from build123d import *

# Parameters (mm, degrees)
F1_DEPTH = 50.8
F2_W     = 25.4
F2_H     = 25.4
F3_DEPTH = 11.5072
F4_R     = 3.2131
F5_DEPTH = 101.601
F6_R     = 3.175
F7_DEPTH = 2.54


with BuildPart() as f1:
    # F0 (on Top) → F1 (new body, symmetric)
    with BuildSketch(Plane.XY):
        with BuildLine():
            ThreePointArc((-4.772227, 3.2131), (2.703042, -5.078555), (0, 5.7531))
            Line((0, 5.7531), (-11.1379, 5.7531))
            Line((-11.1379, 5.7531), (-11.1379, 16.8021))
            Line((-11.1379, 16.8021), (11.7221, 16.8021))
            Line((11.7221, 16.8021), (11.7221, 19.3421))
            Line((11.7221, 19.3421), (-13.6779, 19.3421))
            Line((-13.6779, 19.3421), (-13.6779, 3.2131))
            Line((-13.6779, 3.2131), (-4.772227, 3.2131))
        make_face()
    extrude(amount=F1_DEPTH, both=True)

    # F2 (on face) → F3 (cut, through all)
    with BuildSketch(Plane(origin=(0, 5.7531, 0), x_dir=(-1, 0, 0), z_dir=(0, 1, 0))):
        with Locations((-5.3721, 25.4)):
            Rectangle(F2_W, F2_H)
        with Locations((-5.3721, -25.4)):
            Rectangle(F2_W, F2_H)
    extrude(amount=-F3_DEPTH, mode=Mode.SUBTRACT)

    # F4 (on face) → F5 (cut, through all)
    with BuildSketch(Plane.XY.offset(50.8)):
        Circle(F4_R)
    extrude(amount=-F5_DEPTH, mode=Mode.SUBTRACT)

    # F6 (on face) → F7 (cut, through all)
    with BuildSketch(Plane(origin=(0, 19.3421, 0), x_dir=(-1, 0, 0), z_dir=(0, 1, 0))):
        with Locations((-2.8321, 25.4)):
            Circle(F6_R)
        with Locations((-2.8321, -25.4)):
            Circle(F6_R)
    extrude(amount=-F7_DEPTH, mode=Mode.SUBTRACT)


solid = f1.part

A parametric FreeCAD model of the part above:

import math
import FreeCAD as App
import Part
import Sketcher
from FreeCAD import Vector
Q = App.Units.Quantity


def add_polygon(sketch, points):
    """Adds a closed chain of lines whose ends are joined by coincident constraints."""
    first, n = sketch.GeometryCount, len(points)
    for a, b in zip(points, points[1:] + points[:1]):
        sketch.addGeometry(Part.LineSegment(App.Vector(*a, 0), App.Vector(*b, 0)), False)
    for i in range(n):
        sketch.addConstraint(Sketcher.Constraint("Coincident", first + i, 2, first + (i + 1) % n, 1))

doc = App.newDocument("Part")
body = doc.addObject("PartDesign::Body", "Body")

sketch1 = body.newObject("Sketcher::SketchObject", "Sketch")
sketch1.AttachmentSupport = (doc.getObject("XY_Plane"), [""])
sketch1.MapMode = "FlatFace"
sketch1.addGeometry([
    Part.ArcOfCircle(Part.Circle(Vector(0, 0, 0), Vector(0, 0, 1), 5.7531), math.radians(146.04795), math.radians(449.999997)),
    Part.LineSegment(Vector(0, 5.7531, 0), Vector(-11.1379, 5.7531, 0)),
    Part.LineSegment(Vector(-11.1379, 5.7531, 0), Vector(-11.1379, 16.8021, 0)),
    Part.LineSegment(Vector(-11.1379, 16.8021, 0), Vector(11.7221, 16.8021, 0)),
    Part.LineSegment(Vector(11.7221, 16.8021, 0), Vector(11.7221, 19.3421, 0)),
    Part.LineSegment(Vector(11.7221, 19.3421, 0), Vector(-13.6779, 19.3421, 0)),
    Part.LineSegment(Vector(-13.6779, 19.3421, 0), Vector(-13.6779, 3.2131, 0)),
    Part.LineSegment(Vector(-13.6779, 3.2131, 0), Vector(-4.772227, 3.2131, 0)),
], False)
sketch1.addConstraint([
    Sketcher.Constraint("Tangent", 0, 2, 1, 1),
    Sketcher.Constraint("Coincident", 1, 2, 2, 1),
    Sketcher.Constraint("Coincident", 2, 2, 3, 1),
    Sketcher.Constraint("Coincident", 3, 2, 4, 1),
    Sketcher.Constraint("Coincident", 4, 2, 5, 1),
    Sketcher.Constraint("Coincident", 5, 2, 6, 1),
    Sketcher.Constraint("Coincident", 6, 2, 7, 1),
    Sketcher.Constraint("Coincident", 7, 2, 0, 1),
    Sketcher.Constraint("Horizontal", 1),
    Sketcher.Constraint("Vertical", 2),
    Sketcher.Constraint("Horizontal", 3),
    Sketcher.Constraint("Vertical", 4),
    Sketcher.Constraint("Horizontal", 5),
    Sketcher.Constraint("Vertical", 6),
    Sketcher.Constraint("Horizontal", 7),
    Sketcher.Constraint("Coincident", 0, 3, -1, 1),
    Sketcher.Constraint("DistanceX", 5, 2, 5, 1, Q("1 in")),
    Sketcher.Constraint("DistanceX", 3, 1, 3, 2, Q("0.9 in")),
    Sketcher.Constraint("DistanceY", 4, 1, 4, 2, Q("0.1 in")),
    Sketcher.Constraint("Radius", 0, Q("0.2265 in")),
    Sketcher.Constraint("DistanceY", 6, 2, 1, 2, Q("0.1 in")),
    Sketcher.Constraint("DistanceY", 2, 1, 2, 2, Q("0.435 in")),
    Sketcher.Constraint("DistanceX", 1, 2, 1, 1, Q("0.4385 in")),
])
pad1 = body.newObject("PartDesign::Pad", "Pad")
pad1.Profile = sketch1
pad1.Length = Q("4 in")
pad1.Midplane = True

sketch2 = body.newObject("Sketcher::SketchObject", "Sketch001")
sketch2.AttachmentSupport = (doc.getObject("XZ_Plane"), [""])
sketch2.MapMode = "FlatFace"
sketch2.AttachmentOffset = App.Placement(Vector(0, 0, -0.2265 * 25.4), App.Rotation())
add_polygon(sketch2, [(18.0721, 38.1), (18.0721, 12.7), (-7.3279, 12.7), (-7.3279, 38.1)])
add_polygon(sketch2, [(18.0721, -12.7), (18.0721, -38.1), (-7.3279, -38.1), (-7.3279, -12.7)])
sketch2.addConstraint([
    Sketcher.Constraint("Vertical", 0),
    Sketcher.Constraint("Horizontal", 1),
    Sketcher.Constraint("Vertical", 2),
    Sketcher.Constraint("Horizontal", 3),
    Sketcher.Constraint("Vertical", 4),
    Sketcher.Constraint("Horizontal", 5),
    Sketcher.Constraint("Vertical", 6),
    Sketcher.Constraint("Horizontal", 7),
    Sketcher.Constraint("Symmetric", 3, 2, 4, 2, -1),
    Sketcher.Constraint("Symmetric", 1, 2, 6, 2, -1),
    Sketcher.Constraint("Equal", 7, 0),
    Sketcher.Constraint("DistanceX", 1, 2, 1, 1, Q("1 in")),
    Sketcher.Constraint("DistanceY", 4, 2, 0, 2, Q("2 in")),
    Sketcher.Constraint("DistanceX", -1, 1, 0, 2, Q("0.7115 in")),
])
pocket1 = body.newObject("PartDesign::Pocket", "Pocket")
pocket1.Profile = sketch2
pocket1.Type = "ThroughAll"
pocket1.Reversed = True

sketch3 = body.newObject("Sketcher::SketchObject", "Sketch002")
sketch3.AttachmentSupport = (doc.getObject("XY_Plane"), [""])
sketch3.MapMode = "FlatFace"
sketch3.AttachmentOffset = App.Placement(Vector(0, 0, 2 * 25.4), App.Rotation())
sketch3.addGeometry(Part.Circle(Vector(0, 0, 0), Vector(0, 0, 1), 3.2131), False)
sketch3.addConstraint([
    Sketcher.Constraint("Coincident", 0, 3, -1, 1),
    Sketcher.Constraint("Diameter", 0, Q("0.253 in")),
])
pocket2 = body.newObject("PartDesign::Pocket", "Pocket001")
pocket2.Profile = sketch3
pocket2.Type = "ThroughAll"

sketch4 = body.newObject("Sketcher::SketchObject", "Sketch003")
sketch4.AttachmentSupport = (doc.getObject("XZ_Plane"), [""])
sketch4.MapMode = "FlatFace"
sketch4.AttachmentOffset = App.Placement(Vector(0, 0, -0.7615 * 25.4), App.Rotation())
sketch4.addGeometry([
    Part.Circle(Vector(2.8321, 25.4, 0), Vector(0, 0, 1), 3.175),
    Part.Circle(Vector(2.8321, -25.4, 0), Vector(0, 0, 1), 3.175),
], False)
sketch4.addConstraint([
    Sketcher.Constraint("Equal", 0, 1),
    Sketcher.Constraint("Symmetric", 0, 3, 1, 3, -1),
    Sketcher.Constraint("Diameter", 0, Q("0.25 in")),
    Sketcher.Constraint("DistanceY", -1, 1, 0, 3, Q("1 in")),
    Sketcher.Constraint("DistanceX", -1, 1, 0, 3, Q("0.1115 in")),
])
pocket3 = body.newObject("PartDesign::Pocket", "Pocket002")
pocket3.Profile = sketch4
pocket3.Type = "ThroughAll"
pocket3.Reversed = True

doc.recompute()
